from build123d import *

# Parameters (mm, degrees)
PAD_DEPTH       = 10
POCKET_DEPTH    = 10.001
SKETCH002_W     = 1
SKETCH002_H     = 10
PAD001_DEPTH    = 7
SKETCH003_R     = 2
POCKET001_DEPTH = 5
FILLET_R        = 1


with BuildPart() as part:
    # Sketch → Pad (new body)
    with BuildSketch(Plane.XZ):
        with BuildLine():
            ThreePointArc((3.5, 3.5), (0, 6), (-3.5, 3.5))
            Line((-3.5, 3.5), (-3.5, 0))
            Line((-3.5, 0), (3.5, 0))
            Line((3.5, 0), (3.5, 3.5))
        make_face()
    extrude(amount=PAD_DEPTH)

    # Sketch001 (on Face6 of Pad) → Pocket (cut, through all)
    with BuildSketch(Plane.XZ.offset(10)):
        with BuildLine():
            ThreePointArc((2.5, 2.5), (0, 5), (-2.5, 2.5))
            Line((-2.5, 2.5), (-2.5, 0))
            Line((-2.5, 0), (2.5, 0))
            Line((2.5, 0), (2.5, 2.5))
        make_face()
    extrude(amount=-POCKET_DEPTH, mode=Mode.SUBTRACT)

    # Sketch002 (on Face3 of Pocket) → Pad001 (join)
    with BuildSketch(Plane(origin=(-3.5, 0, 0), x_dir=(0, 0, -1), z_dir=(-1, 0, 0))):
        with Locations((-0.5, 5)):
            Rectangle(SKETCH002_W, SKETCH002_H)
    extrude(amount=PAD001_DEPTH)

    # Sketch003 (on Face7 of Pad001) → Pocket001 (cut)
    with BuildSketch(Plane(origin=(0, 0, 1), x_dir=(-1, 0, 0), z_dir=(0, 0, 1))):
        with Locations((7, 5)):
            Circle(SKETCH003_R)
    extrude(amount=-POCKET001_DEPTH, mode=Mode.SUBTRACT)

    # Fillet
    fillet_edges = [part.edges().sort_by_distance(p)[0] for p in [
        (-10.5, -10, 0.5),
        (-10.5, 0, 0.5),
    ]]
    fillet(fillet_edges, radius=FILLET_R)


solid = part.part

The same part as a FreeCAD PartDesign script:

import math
import FreeCAD as App
import Part
import Sketcher

V = App.Vector


def edges_at(feature, points):
    """Names of the edges that pass closest to the given points."""
    edges = feature.Shape.Edges
    near = lambda p: min(range(len(edges)), key=lambda i: edges[i].distToShape(Part.Vertex(*p))[0])
    return sorted({f"Edge{near(p) + 1}" for p in points})


def add_polygon(sketch, points):
    """Adds a closed chain of lines whose ends are joined by coincident constraints."""
    first, n = sketch.GeometryCount, len(points)
    for a, b in zip(points, points[1:] + points[:1]):
        sketch.addGeometry(Part.LineSegment(App.Vector(*a, 0), App.Vector(*b, 0)), False)
    for i in range(n):
        sketch.addConstraint(Sketcher.Constraint("Coincident", first + i, 2, first + (i + 1) % n, 1))

doc = App.newDocument("Part")
params = doc.addObject("Spreadsheet::Sheet", "Params")
for row, (alias, value) in enumerate([
    ("sketch1_radius", "3.7 mm"),
    ("sketch1_width", "7 mm"),
    ("sketch1_height", "3.5 mm"),
    ("pad1_length", "10 mm"),
    ("sketch2_radius", "2.5 mm"),
    ("sketch2_height", "2.5 mm"),
    ("sketch3_width", "10 mm"),
    ("sketch3_height", "1 mm"),
    ("pad2_length", "7 mm"),
    ("sketch4_diameter", "4 mm"),
    ("pocket2_length", "5 mm"),
    ("fillet_radius", "1 mm"),
], start=1):
    params.set(f"A{row}", alias)
    params.set(f"B{row}", "=" + value)
    params.setAlias(f"B{row}", alias)

body = doc.addObject("PartDesign::Body", "Body")

# Sketch on XZ plane
sketch1 = body.newObject("Sketcher::SketchObject", "Sketch")
sketch1.AttachmentSupport = (doc.getObject("XZ_Plane"), [""])
sketch1.MapMode = "FlatFace"
sketch1.addGeometry(Part.ArcOfCircle(Part.Circle(V(0, 2.3, 0), V(0, 0, 1), 3.7), math.radians(19), math.radians(161)), False)
sketch1.addGeometry(Part.LineSegment(V(-3.5, 3.5, 0), V(-3.5, 0, 0)), False)
sketch1.addGeometry(Part.LineSegment(V(-3.5, 0, 0), V(3.5, 0, 0)), False)
sketch1.addGeometry(Part.LineSegment(V(3.5, 0, 0), V(3.5, 3.5, 0)), False)
sketch1.addConstraint(Sketcher.Constraint("Coincident", 0, 2, 1, 1))
sketch1.addConstraint(Sketcher.Constraint("Coincident", 1, 2, 2, 1))
sketch1.addConstraint(Sketcher.Constraint("Coincident", 2, 2, 3, 1))
sketch1.addConstraint(Sketcher.Constraint("Coincident", 3, 2, 0, 1))
sketch1.addConstraint(Sketcher.Constraint("Vertical", 1))
sketch1.addConstraint(Sketcher.Constraint("Horizontal", 2))
sketch1.addConstraint(Sketcher.Constraint("Vertical", 3))
sketch1.addConstraint(Sketcher.Constraint("Symmetric", 1, 2, 2, 2, -1, 1))
sketch1.addConstraint(Sketcher.Constraint("PointOnObject", 0, 3, -2))
sketch1.addConstraint(Sketcher.Constraint("Radius", 0, 3.7))
sketch1.addConstraint(Sketcher.Constraint("DistanceX", 2, 1, 2, 2, 7.0))
sketch1.addConstraint(Sketcher.Constraint("DistanceY", 1, 2, 1, 1, 3.5))
sketch1.setExpression("Constraints[9]", "Params.sketch1_radius")
sketch1.setExpression("Constraints[10]", "Params.sketch1_width")
sketch1.setExpression("Constraints[11]", "Params.sketch1_height")
pad1 = body.newObject("PartDesign::Pad", "Pad")
pad1.Profile = sketch1
pad1.setExpression("Length", "Params.pad1_length")

# Sketch on XZ plane
sketch2 = body.newObject("Sketcher::SketchObject", "Sketch001")
sketch2.AttachmentSupport = (doc.getObject("XZ_Plane"), [""])
sketch2.MapMode = "FlatFace"
sketch2.AttachmentOffset = App.Placement(V(0, 0, 10), App.Rotation())
sketch2.addGeometry(Part.ArcOfCircle(Part.Circle(V(0, 2.5, 0), V(0, 0, 1), 2.5), math.radians(0), math.radians(180)), False)
sketch2.addGeometry(Part.LineSegment(V(-2.5, 2.5, 0), V(-2.5, 0, 0)), False)
sketch2.addGeometry(Part.LineSegment(V(-2.5, 0, 0), V(2.5, 0, 0)), False)
sketch2.addGeometry(Part.LineSegment(V(2.5, 0, 0), V(2.5, 2.5, 0)), False)
sketch2.addConstraint(Sketcher.Constraint("Tangent", 0, 2, 1, 1))
sketch2.addConstraint(Sketcher.Constraint("Coincident", 1, 2, 2, 1))
sketch2.addConstraint(Sketcher.Constraint("Coincident", 2, 2, 3, 1))
sketch2.addConstraint(Sketcher.Constraint("Tangent", 3, 2, 0, 1))
sketch2.addConstraint(Sketcher.Constraint("Vertical", 1))
sketch2.addConstraint(Sketcher.Constraint("Horizontal", 2))
sketch2.addConstraint(Sketcher.Constraint("Vertical", 3))
sketch2.addConstraint(Sketcher.Constraint("Symmetric", 1, 2, 2, 2, -1, 1))
sketch2.addConstraint(Sketcher.Constraint("Radius", 0, 2.5))
sketch2.addConstraint(Sketcher.Constraint("DistanceY", 1, 2, 1, 1, 2.5))
sketch2.setExpression("Constraints[8]", "Params.sketch2_radius")
sketch2.setExpression("Constraints[9]", "Params.sketch2_height")
pocket1 = body.newObject("PartDesign::Pocket", "Pocket")
pocket1.Profile = sketch2
pocket1.Type = "ThroughAll"

# Sketch on YZ plane
sketch3 = body.newObject("Sketcher::SketchObject", "Sketch002")
sketch3.AttachmentSupport = (doc.getObject("YZ_Plane"), [""])
sketch3.MapMode = "FlatFace"
sketch3.AttachmentOffset = App.Placement(V(0, 0, -3.5), App.Rotation())
add_polygon(sketch3, [(-10, 1), (0, 1), (0, 0), (-10, 0)])  # lines 0-3
sketch3.addConstraint(Sketcher.Constraint("Horizontal", 0))
sketch3.addConstraint(Sketcher.Constraint("Vertical", 1))
sketch3.addConstraint(Sketcher.Constraint("Horizontal", 2))
sketch3.addConstraint(Sketcher.Constraint("Vertical", 3))
sketch3.addConstraint(Sketcher.Constraint("Coincident", 1, 2, -1, 1))
sketch3.addConstraint(Sketcher.Constraint("DistanceX", 0, 1, 0, 2, 10.0))
sketch3.addConstraint(Sketcher.Constraint("DistanceY", 1, 2, 1, 1, 1.0))
sketch3.setExpression("Constraints[9]", "Params.sketch3_width")
sketch3.setExpression("Constraints[10]", "Params.sketch3_height")
pad2 = body.newObject("PartDesign::Pad", "Pad001")
pad2.Profile = sketch3
pad2.setExpression("Length", "Params.pad2_length")
pad2.Reversed = True

# Sketch on XY plane
sketch4 = body.newObject("Sketcher::SketchObject", "Sketch003")
sketch4.AttachmentSupport = (doc.getObject("XY_Plane"), [""])
sketch4.MapMode = "FlatFace"
sketch4.AttachmentOffset = App.Placement(V(0, 0, 1), App.Rotation())
sketch4.addGeometry(Part.Circle(V(-7, -5, 0), V(0, 0, 1), 2), False)
sketch4.addConstraint(Sketcher.Constraint("Diameter", 0, 4.0))
sketch4.addConstraint(Sketcher.Constraint("DistanceX", 0, 3, -1, 1, 7.0))
sketch4.addConstraint(Sketcher.Constraint("DistanceY", 0, 3, -1, 1, 5.0))
sketch4.setExpression("Constraints[0]", "Params.sketch4_diameter")
pocket2 = body.newObject("PartDesign::Pocket", "Pocket001")
pocket2.Profile = sketch4
pocket2.setExpression("Length", "Params.pocket2_length")
doc.recompute()

fillet = body.newObject("PartDesign::Fillet", "Fillet")
fillet.Base = (pocket2, edges_at(pocket2, [(-10.5, -10, 0.5), (-10.5, 0, 0.5)]))
fillet.setExpression("Radius", "Params.fillet_radius")

doc.recompute()
